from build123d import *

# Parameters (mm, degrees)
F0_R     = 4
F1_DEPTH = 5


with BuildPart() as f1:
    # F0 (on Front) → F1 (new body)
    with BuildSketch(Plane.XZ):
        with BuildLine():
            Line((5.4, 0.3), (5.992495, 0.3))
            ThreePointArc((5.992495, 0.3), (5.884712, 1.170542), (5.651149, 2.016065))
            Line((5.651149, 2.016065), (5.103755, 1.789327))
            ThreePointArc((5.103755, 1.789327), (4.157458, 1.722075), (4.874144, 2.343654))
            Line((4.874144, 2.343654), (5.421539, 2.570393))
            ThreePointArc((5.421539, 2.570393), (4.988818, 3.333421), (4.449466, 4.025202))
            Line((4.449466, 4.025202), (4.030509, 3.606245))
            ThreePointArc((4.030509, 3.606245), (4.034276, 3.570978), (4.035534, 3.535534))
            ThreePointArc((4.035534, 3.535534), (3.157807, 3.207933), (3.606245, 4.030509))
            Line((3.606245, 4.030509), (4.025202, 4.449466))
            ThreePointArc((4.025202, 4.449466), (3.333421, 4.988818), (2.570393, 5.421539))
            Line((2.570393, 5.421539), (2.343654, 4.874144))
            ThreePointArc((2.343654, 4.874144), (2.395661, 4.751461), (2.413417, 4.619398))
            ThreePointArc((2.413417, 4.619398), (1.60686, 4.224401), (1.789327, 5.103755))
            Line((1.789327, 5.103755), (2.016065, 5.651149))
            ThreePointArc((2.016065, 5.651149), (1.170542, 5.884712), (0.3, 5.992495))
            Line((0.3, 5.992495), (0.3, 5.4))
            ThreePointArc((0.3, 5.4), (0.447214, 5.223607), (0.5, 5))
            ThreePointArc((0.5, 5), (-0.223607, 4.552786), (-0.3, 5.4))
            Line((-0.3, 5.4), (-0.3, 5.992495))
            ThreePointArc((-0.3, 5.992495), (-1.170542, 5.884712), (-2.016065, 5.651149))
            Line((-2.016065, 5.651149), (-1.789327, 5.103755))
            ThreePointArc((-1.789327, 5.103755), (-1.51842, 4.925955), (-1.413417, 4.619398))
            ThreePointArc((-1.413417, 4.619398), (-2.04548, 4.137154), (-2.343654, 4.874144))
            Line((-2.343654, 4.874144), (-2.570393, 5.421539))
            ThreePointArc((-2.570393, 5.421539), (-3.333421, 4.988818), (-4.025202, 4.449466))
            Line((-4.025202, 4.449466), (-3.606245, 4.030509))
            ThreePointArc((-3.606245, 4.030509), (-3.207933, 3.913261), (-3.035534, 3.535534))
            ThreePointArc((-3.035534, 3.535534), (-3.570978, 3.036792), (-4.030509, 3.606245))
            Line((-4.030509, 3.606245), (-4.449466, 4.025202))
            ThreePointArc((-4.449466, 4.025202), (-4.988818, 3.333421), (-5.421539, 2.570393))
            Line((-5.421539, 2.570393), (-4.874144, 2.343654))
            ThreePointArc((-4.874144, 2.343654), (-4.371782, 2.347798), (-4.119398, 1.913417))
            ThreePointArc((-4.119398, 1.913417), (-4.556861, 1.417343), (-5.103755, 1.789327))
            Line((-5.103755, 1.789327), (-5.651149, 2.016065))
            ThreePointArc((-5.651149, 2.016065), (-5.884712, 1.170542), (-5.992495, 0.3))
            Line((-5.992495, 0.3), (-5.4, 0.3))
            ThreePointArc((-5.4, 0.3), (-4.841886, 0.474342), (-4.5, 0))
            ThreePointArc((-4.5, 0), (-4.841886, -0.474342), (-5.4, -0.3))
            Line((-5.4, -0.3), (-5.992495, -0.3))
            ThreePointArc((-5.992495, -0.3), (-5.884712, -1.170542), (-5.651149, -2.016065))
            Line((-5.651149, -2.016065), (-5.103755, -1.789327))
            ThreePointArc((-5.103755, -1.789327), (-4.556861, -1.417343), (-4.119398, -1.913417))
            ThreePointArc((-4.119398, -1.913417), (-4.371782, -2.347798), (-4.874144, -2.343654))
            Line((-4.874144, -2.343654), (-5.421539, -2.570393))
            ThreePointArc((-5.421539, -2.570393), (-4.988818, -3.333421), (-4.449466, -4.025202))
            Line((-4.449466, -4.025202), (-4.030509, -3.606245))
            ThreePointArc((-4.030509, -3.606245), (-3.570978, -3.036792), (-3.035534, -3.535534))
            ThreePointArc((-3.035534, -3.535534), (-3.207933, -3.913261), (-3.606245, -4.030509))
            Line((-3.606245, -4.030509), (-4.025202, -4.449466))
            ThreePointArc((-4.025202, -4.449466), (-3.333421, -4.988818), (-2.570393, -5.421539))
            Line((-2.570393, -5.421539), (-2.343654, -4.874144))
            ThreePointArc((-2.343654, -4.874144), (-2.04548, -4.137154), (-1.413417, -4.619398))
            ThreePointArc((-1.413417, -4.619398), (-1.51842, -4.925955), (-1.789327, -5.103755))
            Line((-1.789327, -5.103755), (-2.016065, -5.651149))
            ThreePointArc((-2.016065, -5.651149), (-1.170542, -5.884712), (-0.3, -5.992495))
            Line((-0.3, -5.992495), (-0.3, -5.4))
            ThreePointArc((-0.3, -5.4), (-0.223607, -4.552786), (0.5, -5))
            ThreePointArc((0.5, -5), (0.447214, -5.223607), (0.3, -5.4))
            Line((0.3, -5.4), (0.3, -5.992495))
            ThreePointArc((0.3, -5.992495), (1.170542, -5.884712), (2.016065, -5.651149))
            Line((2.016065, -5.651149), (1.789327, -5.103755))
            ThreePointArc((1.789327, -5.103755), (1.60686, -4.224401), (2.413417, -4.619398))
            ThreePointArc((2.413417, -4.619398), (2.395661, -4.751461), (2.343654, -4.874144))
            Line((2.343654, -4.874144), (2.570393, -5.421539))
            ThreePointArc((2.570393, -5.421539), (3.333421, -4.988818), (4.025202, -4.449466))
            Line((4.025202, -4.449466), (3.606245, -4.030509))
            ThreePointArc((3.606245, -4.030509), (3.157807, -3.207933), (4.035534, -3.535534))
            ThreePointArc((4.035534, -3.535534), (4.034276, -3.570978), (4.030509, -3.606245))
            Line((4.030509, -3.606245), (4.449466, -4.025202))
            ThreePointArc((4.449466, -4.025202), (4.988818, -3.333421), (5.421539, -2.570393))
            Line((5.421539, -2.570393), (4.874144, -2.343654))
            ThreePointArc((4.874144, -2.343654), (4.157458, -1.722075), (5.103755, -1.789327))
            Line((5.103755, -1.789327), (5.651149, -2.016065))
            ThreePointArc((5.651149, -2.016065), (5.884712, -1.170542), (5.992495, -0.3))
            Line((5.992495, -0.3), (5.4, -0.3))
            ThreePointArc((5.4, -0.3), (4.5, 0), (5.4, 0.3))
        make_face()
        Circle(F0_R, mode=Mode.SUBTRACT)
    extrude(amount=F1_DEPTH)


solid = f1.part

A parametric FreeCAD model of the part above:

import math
import FreeCAD as App
import Part
import Sketcher

V = App.Vector
Q = App.Units.Quantity

doc = App.newDocument("Part")
body = doc.addObject("PartDesign::Body", "Body")

# Sketch on XZ plane
sketch1 = doc.addObject("Sketcher::SketchObject", "Sketch")
body.addObject(sketch1)
sketch1.AttachmentSupport = (doc.XZ_Plane, [""])
sketch1.MapMode = "FlatFace"
sketch1.addGeometry(Part.LineSegment(V(5.4, 0.3, 0), V(5.992495, 0.3, 0)), False)
sketch1.addGeometry(Part.ArcOfCircle(Part.Circle(V(0.000032, 0.000008, 0), V(0, 0, 1), 5.999968), math.radians(2.86592), math.radians(19.634044)), False)
sketch1.addGeometry(Part.LineSegment(V(5.651149, 2.016065, 0), V(5.103755, 1.789327, 0)), False)
sketch1.addGeometry(Part.ArcOfCircle(Part.Circle(V(4.619398, 1.913416, 0), V(0, 0, 1), 0.5), math.radians(59.369986), math.radians(345.630232)), False)
sketch1.addGeometry(Part.LineSegment(V(4.874144, 2.343654, 0), V(5.421539, 2.570393, 0)), False)
sketch1.addGeometry(Part.ArcOfCircle(Part.Circle(V(-0.000008, -0.000008, 0), V(0, 0, 1), 6.000011), math.radians(25.36602), math.radians(42.134018)), False)
sketch1.addGeometry(Part.LineSegment(V(4.449466, 4.025202, 0), V(4.030509, 3.606245, 0)), False)
sketch1.addGeometry(Part.ArcOfCircle(Part.Circle(V(3.535419, 3.535528, 0), V(0, 0, 1), 0.500115), math.radians(0.000692), math.radians(8.128965)), False)
sketch1.addGeometry(Part.ArcOfCircle(Part.Circle(V(3.535534, 3.535534, 0), V(0, 0, 1), 0.5), math.radians(81.869848), math.radians(359.999978)), False)
sketch1.addGeometry(Part.LineSegment(V(3.606245, 4.030509, 0), V(4.025202, 4.449466, 0)), False)
sketch1.addGeometry(Part.ArcOfCircle(Part.Circle(V(-0.000008, -0.000008, 0), V(0, 0, 1), 6.000011), math.radians(47.865982), math.radians(64.63398)), False)
sketch1.addGeometry(Part.LineSegment(V(2.570393, 5.421539, 0), V(2.343654, 4.874144, 0)), False)
sketch1.addGeometry(Part.ArcOfCircle(Part.Circle(V(1.913423, 4.619398, 0), V(0, 0, 1), 0.499994), math.radians(-0.000055), math.radians(30.630344)), False)
sketch1.addGeometry(Part.ArcOfCircle(Part.Circle(V(1.913417, 4.619398, 0), V(0, 0, 1), 0.5), math.radians(104.369848), math.radians(359.999988)), False)
sketch1.addGeometry(Part.LineSegment(V(1.789327, 5.103755, 0), V(2.016065, 5.651149, 0)), False)
sketch1.addGeometry(Part.ArcOfCircle(Part.Circle(V(0.000008, 0.000032, 0), V(0, 0, 1), 5.999968), math.radians(70.365956), math.radians(87.13408)), False)
sketch1.addGeometry(Part.LineSegment(V(0.3, 5.992495, 0), V(0.3, 5.4, 0)), False)
sketch1.addGeometry(Part.ArcOfCircle(Part.Circle(V(0.000004, 5.000002, 0), V(0, 0, 1), 0.499996), math.radians(-0.00022), math.radians(53.130322)), False)
sketch1.addGeometry(Part.ArcOfCircle(Part.Circle(V(0, 5, 0), V(0, 0, 1), 0.5), math.radians(126.869866), math.radians(360.000032)), False)
sketch1.addGeometry(Part.LineSegment(V(-0.3, 5.4, 0), V(-0.3, 5.992495, 0)), False)
sketch1.addGeometry(Part.ArcOfCircle(Part.Circle(V(-0.000008, 0.000032, 0), V(0, 0, 1), 5.999968), math.radians(92.86592), math.radians(109.634044)), False)
sketch1.addGeometry(Part.LineSegment(V(-2.016065, 5.651149, 0), V(-1.789327, 5.103755, 0)), False)
sketch1.addGeometry(Part.ArcOfCircle(Part.Circle(V(-1.913418, 4.619397, 0), V(0, 0, 1), 0.500001), math.radians(0.000062), math.radians(75.630094)), False)
sketch1.addGeometry(Part.ArcOfCircle(Part.Circle(V(-1.913417, 4.619398, 0), V(0, 0, 1), 0.5), math.radians(149.369952), math.radians(360.000028)), False)
sketch1.addGeometry(Part.LineSegment(V(-2.343654, 4.874144, 0), V(-2.570393, 5.421539, 0)), False)
sketch1.addGeometry(Part.ArcOfCircle(Part.Circle(V(0.000008, -0.000008, 0), V(0, 0, 1), 6.000011), math.radians(115.36602), math.radians(132.134018)), False)
sketch1.addGeometry(Part.LineSegment(V(-4.025202, 4.449466, 0), V(-3.606245, 4.030509, 0)), False)
sketch1.addGeometry(Part.ArcOfCircle(Part.Circle(V(-3.535534, 3.535534, 0), V(0, 0, 1), 0.5), math.radians(-0.000003), math.radians(98.130108)), False)
sketch1.addGeometry(Part.ArcOfCircle(Part.Circle(V(-3.535534, 3.535534, 0), V(0, 0, 1), 0.5), math.radians(171.869895), math.radians(359.999968)), False)
sketch1.addGeometry(Part.LineSegment(V(-4.030509, 3.606245, 0), V(-4.449466, 4.025202, 0)), False)
sketch1.addGeometry(Part.ArcOfCircle(Part.Circle(V(0.000008, -0.000008, 0), V(0, 0, 1), 6.000011), math.radians(137.865982), math.radians(154.63398)), False)
sketch1.addGeometry(Part.LineSegment(V(-5.421539, 2.570393, 0), V(-4.874144, 2.343654, 0)), False)
sketch1.addGeometry(Part.ArcOfCircle(Part.Circle(V(-4.619397, 1.913418, 0), V(0, 0, 1), 0.499999), math.radians(-0.000145), math.radians(120.630223)), False)
sketch1.addGeometry(Part.ArcOfCircle(Part.Circle(V(-4.619398, 1.913417, 0), V(0, 0, 1), 0.5), math.radians(-165.630196), math.radians(0.000036)), False)
sketch1.addGeometry(Part.LineSegment(V(-5.103755, 1.789327, 0), V(-5.651149, 2.016065, 0)), False)
sketch1.addGeometry(Part.ArcOfCircle(Part.Circle(V(-0.000032, 0.000008, 0), V(0, 0, 1), 5.999968), math.radians(160.365956), math.radians(177.13408)), False)
sketch1.addGeometry(Part.LineSegment(V(-5.992495, 0.3, 0), V(-5.4, 0.3, 0)), False)
sketch1.addGeometry(Part.ArcOfCircle(Part.Circle(V(-5, 0.000001, 0), V(0, 0, 1), 0.5), math.radians(-0.000059), math.radians(143.130161)), False)
sketch1.addGeometry(Part.ArcOfCircle(Part.Circle(V(-5, -0.000001, 0), V(0, 0, 1), 0.5), math.radians(-143.130161), math.radians(0.000059)), False)
sketch1.addGeometry(Part.LineSegment(V(-5.4, -0.3, 0), V(-5.992495, -0.3, 0)), False)
sketch1.addGeometry(Part.ArcOfCircle(Part.Circle(V(-0.000032, -0.000008, 0), V(0, 0, 1), 5.999968), math.radians(-177.13408), math.radians(-160.365956)), False)
sketch1.addGeometry(Part.LineSegment(V(-5.651149, -2.016065, 0), V(-5.103755, -1.789327, 0)), False)
sketch1.addGeometry(Part.ArcOfCircle(Part.Circle(V(-4.619398, -1.913417, 0), V(0, 0, 1), 0.5), math.radians(-0.000036), math.radians(165.630196)), False)
sketch1.addGeometry(Part.ArcOfCircle(Part.Circle(V(-4.619397, -1.913418, 0), V(0, 0, 1), 0.499999), math.radians(-120.630223), math.radians(0.000145)), False)
sketch1.addGeometry(Part.LineSegment(V(-4.874144, -2.343654, 0), V(-5.421539, -2.570393, 0)), False)
sketch1.addGeometry(Part.ArcOfCircle(Part.Circle(V(0.000008, 0.000008, 0), V(0, 0, 1), 6.000011), math.radians(-154.63398), math.radians(-137.865982)), False)
sketch1.addGeometry(Part.LineSegment(V(-4.449466, -4.025202, 0), V(-4.030509, -3.606245, 0)), False)
sketch1.addGeometry(Part.ArcOfCircle(Part.Circle(V(-3.535534, -3.535534, 0), V(0, 0, 1), 0.5), math.radians(0.000032), math.radians(188.130105)), False)
sketch1.addGeometry(Part.ArcOfCircle(Part.Circle(V(-3.535534, -3.535534, 0), V(0, 0, 1), 0.5), math.radians(-98.130108), math.radians(0.000003)), False)
sketch1.addGeometry(Part.LineSegment(V(-3.606245, -4.030509, 0), V(-4.025202, -4.449466, 0)), False)
sketch1.addGeometry(Part.ArcOfCircle(Part.Circle(V(0.000008, 0.000008, 0), V(0, 0, 1), 6.000011), math.radians(-132.134018), math.radians(-115.36602)), False)
sketch1.addGeometry(Part.LineSegment(V(-2.570393, -5.421539, 0), V(-2.343654, -4.874144, 0)), False)
sketch1.addGeometry(Part.ArcOfCircle(Part.Circle(V(-1.913417, -4.619398, 0), V(0, 0, 1), 0.5), math.radians(-0.000028), math.radians(210.630048)), False)
sketch1.addGeometry(Part.ArcOfCircle(Part.Circle(V(-1.913418, -4.619397, 0), V(0, 0, 1), 0.500001), math.radians(-75.630094), math.radians(-0.000062)), False)
sketch1.addGeometry(Part.LineSegment(V(-1.789327, -5.103755, 0), V(-2.016065, -5.651149, 0)), False)
sketch1.addGeometry(Part.ArcOfCircle(Part.Circle(V(-0.000008, -0.000032, 0), V(0, 0, 1), 5.999968), math.radians(-109.634044), math.radians(-92.86592)), False)
sketch1.addGeometry(Part.LineSegment(V(-0.3, -5.992495, 0), V(-0.3, -5.4, 0)), False)
sketch1.addGeometry(Part.ArcOfCircle(Part.Circle(V(0, -5, 0), V(0, 0, 1), 0.5), math.radians(-0.000032), math.radians(233.130134)), False)
sketch1.addGeometry(Part.ArcOfCircle(Part.Circle(V(0.000004, -5.000002, 0), V(0, 0, 1), 0.499996), math.radians(-53.130322), math.radians(0.00022)), False)
sketch1.addGeometry(Part.LineSegment(V(0.3, -5.4, 0), V(0.3, -5.992495, 0)), False)
sketch1.addGeometry(Part.ArcOfCircle(Part.Circle(V(0.000008, -0.000032, 0), V(0, 0, 1), 5.999968), math.radians(-87.13408), math.radians(-70.365956)), False)
sketch1.addGeometry(Part.LineSegment(V(2.016065, -5.651149, 0), V(1.789327, -5.103755, 0)), False)
sketch1.addGeometry(Part.ArcOfCircle(Part.Circle(V(1.913417, -4.619398, 0), V(0, 0, 1), 0.5), math.radians(0.000012), math.radians(255.630152)), False)
sketch1.addGeometry(Part.ArcOfCircle(Part.Circle(V(1.913423, -4.619398, 0), V(0, 0, 1), 0.499994), math.radians(-30.630344), math.radians(0.000055)), False)
sketch1.addGeometry(Part.LineSegment(V(2.343654, -4.874144, 0), V(2.570393, -5.421539, 0)), False)
sketch1.addGeometry(Part.ArcOfCircle(Part.Circle(V(-0.000008, 0.000008, 0), V(0, 0, 1), 6.000011), math.radians(-64.63398), math.radians(-47.865982)), False)
sketch1.addGeometry(Part.LineSegment(V(4.025202, -4.449466, 0), V(3.606245, -4.030509, 0)), False)
sketch1.addGeometry(Part.ArcOfCircle(Part.Circle(V(3.535534, -3.535534, 0), V(0, 0, 1), 0.5), math.radians(0.000022), math.radians(278.130152)), False)
sketch1.addGeometry(Part.ArcOfCircle(Part.Circle(V(3.535419, -3.535528, 0), V(0, 0, 1), 0.500115), math.radians(-8.128965), math.radians(-0.000692)), False)
sketch1.addGeometry(Part.LineSegment(V(4.030509, -3.606245, 0), V(4.449466, -4.025202, 0)), False)
sketch1.addGeometry(Part.ArcOfCircle(Part.Circle(V(-0.000008, 0.000008, 0), V(0, 0, 1), 6.000011), math.radians(-42.134018), math.radians(-25.36602)), False)
sketch1.addGeometry(Part.LineSegment(V(5.421539, -2.570393, 0), V(4.874144, -2.343654, 0)), False)
sketch1.addGeometry(Part.ArcOfCircle(Part.Circle(V(4.619398, -1.913416, 0), V(0, 0, 1), 0.5), math.radians(14.369768), math.radians(300.630014)), False)
sketch1.addGeometry(Part.LineSegment(V(5.103755, -1.789327, 0), V(5.651149, -2.016065, 0)), False)
sketch1.addGeometry(Part.ArcOfCircle(Part.Circle(V(0.000032, -0.000008, 0), V(0, 0, 1), 5.999968), math.radians(-19.634044), math.radians(-2.86592)), False)
sketch1.addGeometry(Part.LineSegment(V(5.992495, -0.3, 0), V(5.4, -0.3, 0)), False)
sketch1.addGeometry(Part.ArcOfCircle(Part.Circle(V(5, 0, 0), V(0, 0, 1), 0.5), math.radians(36.869898), math.radians(323.130102)), False)
sketch1.addGeometry(Part.Circle(V(0, 0, 0), V(0, 0, 1), 4), False)
sketch1.addConstraint(Sketcher.Constraint("Coincident", 0, 2, 1, 1))
sketch1.addConstraint(Sketcher.Constraint("Coincident", 1, 2, 2, 1))
sketch1.addConstraint(Sketcher.Constraint("Coincident", 2, 2, 3, 2))
sketch1.addConstraint(Sketcher.Constraint("Coincident", 3, 1, 4, 1))
sketch1.addConstraint(Sketcher.Constraint("Coincident", 4, 2, 5, 1))
sketch1.addConstraint(Sketcher.Constraint("Coincident", 5, 2, 6, 1))
sketch1.addConstraint(Sketcher.Constraint("Coincident", 6, 2, 7, 2))
sketch1.addConstraint(Sketcher.Constraint("Coincident", 7, 1, 8, 2))
sketch1.addConstraint(Sketcher.Constraint("Coincident", 8, 1, 9, 1))
sketch1.addConstraint(Sketcher.Constraint("Coincident", 9, 2, 10, 1))
sketch1.addConstraint(Sketcher.Constraint("Coincident", 10, 2, 11, 1))
sketch1.addConstraint(Sketcher.Constraint("Coincident", 11, 2, 12, 2))
sketch1.addConstraint(Sketcher.Constraint("Tangent", 12, 1, 13, 2))
sketch1.addConstraint(Sketcher.Constraint("Coincident", 13, 1, 14, 1))
sketch1.addConstraint(Sketcher.Constraint("Coincident", 14, 2, 15, 1))
sketch1.addConstraint(Sketcher.Constraint("Coincident", 15, 2, 16, 1))
sketch1.addConstraint(Sketcher.Constraint("Coincident", 16, 2, 17, 2))
sketch1.addConstraint(Sketcher.Constraint("Coincident", 17, 1, 18, 2))
sketch1.addConstraint(Sketcher.Constraint("Coincident", 18, 1, 19, 1))
sketch1.addConstraint(Sketcher.Constraint("Coincident", 19, 2, 20, 1))
sketch1.addConstraint(Sketcher.Constraint("Coincident", 20, 2, 21, 1))
sketch1.addConstraint(Sketcher.Constraint("Coincident", 21, 2, 22, 2))
sketch1.addConstraint(Sketcher.Constraint("Tangent", 22, 1, 23, 2))
sketch1.addConstraint(Sketcher.Constraint("Coincident", 23, 1, 24, 1))
sketch1.addConstraint(Sketcher.Constraint("Coincident", 24, 2, 25, 1))
sketch1.addConstraint(Sketcher.Constraint("Coincident", 25, 2, 26, 1))
sketch1.addConstraint(Sketcher.Constraint("Coincident", 26, 2, 27, 2))
sketch1.addConstraint(Sketcher.Constraint("Tangent", 27, 1, 28, 2))
sketch1.addConstraint(Sketcher.Constraint("Coincident", 28, 1, 29, 1))
sketch1.addConstraint(Sketcher.Constraint("Coincident", 29, 2, 30, 1))
sketch1.addConstraint(Sketcher.Constraint("Coincident", 30, 2, 31, 1))
sketch1.addConstraint(Sketcher.Constraint("Coincident", 31, 2, 32, 2))
sketch1.addConstraint(Sketcher.Constraint("Coincident", 32, 1, 33, 2))
sketch1.addConstraint(Sketcher.Constraint("Coincident", 33, 1, 34, 1))
sketch1.addConstraint(Sketcher.Constraint("Coincident", 34, 2, 35, 1))
sketch1.addConstraint(Sketcher.Constraint("Coincident", 35, 2, 36, 1))
sketch1.addConstraint(Sketcher.Constraint("Coincident", 36, 2, 37, 2))
sketch1.addConstraint(Sketcher.Constraint("Coincident", 37, 1, 38, 2))
sketch1.addConstraint(Sketcher.Constraint("Coincident", 38, 1, 39, 1))
sketch1.addConstraint(Sketcher.Constraint("Coincident", 39, 2, 40, 1))
sketch1.addConstraint(Sketcher.Constraint("Coincident", 40, 2, 41, 1))
sketch1.addConstraint(Sketcher.Constraint("Coincident", 41, 2, 42, 2))
sketch1.addConstraint(Sketcher.Constraint("Coincident", 42, 1, 43, 2))
sketch1.addConstraint(Sketcher.Constraint("Coincident", 43, 1, 44, 1))
sketch1.addConstraint(Sketcher.Constraint("Coincident", 44, 2, 45, 1))
sketch1.addConstraint(Sketcher.Constraint("Coincident", 45, 2, 46, 1))
sketch1.addConstraint(Sketcher.Constraint("Coincident", 46, 2, 47, 2))
sketch1.addConstraint(Sketcher.Constraint("Tangent", 47, 1, 48, 2))
sketch1.addConstraint(Sketcher.Constraint("Coincident", 48, 1, 49, 1))
sketch1.addConstraint(Sketcher.Constraint("Coincident", 49, 2, 50, 1))
sketch1.addConstraint(Sketcher.Constraint("Coincident", 50, 2, 51, 1))
sketch1.addConstraint(Sketcher.Constraint("Coincident", 51, 2, 52, 2))
sketch1.addConstraint(Sketcher.Constraint("Tangent", 52, 1, 53, 2))
sketch1.addConstraint(Sketcher.Constraint("Coincident", 53, 1, 54, 1))
sketch1.addConstraint(Sketcher.Constraint("Coincident", 54, 2, 55, 1))
sketch1.addConstraint(Sketcher.Constraint("Coincident", 55, 2, 56, 1))
sketch1.addConstraint(Sketcher.Constraint("Coincident", 56, 2, 57, 2))
sketch1.addConstraint(Sketcher.Constraint("Coincident", 57, 1, 58, 2))
sketch1.addConstraint(Sketcher.Constraint("Coincident", 58, 1, 59, 1))
sketch1.addConstraint(Sketcher.Constraint("Coincident", 59, 2, 60, 1))
sketch1.addConstraint(Sketcher.Constraint("Coincident", 60, 2, 61, 1))
sketch1.addConstraint(Sketcher.Constraint("Coincident", 61, 2, 62, 2))
sketch1.addConstraint(Sketcher.Constraint("Tangent", 62, 1, 63, 2))
sketch1.addConstraint(Sketcher.Constraint("Coincident", 63, 1, 64, 1))
sketch1.addConstraint(Sketcher.Constraint("Coincident", 64, 2, 65, 1))
sketch1.addConstraint(Sketcher.Constraint("Coincident", 65, 2, 66, 1))
sketch1.addConstraint(Sketcher.Constraint("Coincident", 66, 2, 67, 2))
sketch1.addConstraint(Sketcher.Constraint("Coincident", 67, 1, 68, 2))
sketch1.addConstraint(Sketcher.Constraint("Coincident", 68, 1, 69, 1))
sketch1.addConstraint(Sketcher.Constraint("Coincident", 69, 2, 70, 1))
sketch1.addConstraint(Sketcher.Constraint("Coincident", 70, 2, 71, 1))
sketch1.addConstraint(Sketcher.Constraint("Coincident", 71, 2, 72, 2))
sketch1.addConstraint(Sketcher.Constraint("Coincident", 72, 1, 73, 1))
sketch1.addConstraint(Sketcher.Constraint("Coincident", 73, 2, 74, 1))
sketch1.addConstraint(Sketcher.Constraint("Coincident", 74, 2, 75, 1))
sketch1.addConstraint(Sketcher.Constraint("Coincident", 75, 2, 76, 2))
sketch1.addConstraint(Sketcher.Constraint("Coincident", 76, 1, 0, 1))
sketch1.addConstraint(Sketcher.Constraint("Horizontal", 0))
sketch1.addConstraint(Sketcher.Constraint("Vertical", 16))
sketch1.addConstraint(Sketcher.Constraint("Vertical", 19))
sketch1.addConstraint(Sketcher.Constraint("Horizontal", 36))
sketch1.addConstraint(Sketcher.Constraint("Horizontal", 39))
sketch1.addConstraint(Sketcher.Constraint("Vertical", 56))
sketch1.addConstraint(Sketcher.Constraint("Vertical", 59))
sketch1.addConstraint(Sketcher.Constraint("Horizontal", 75))
sketch1.addConstraint(Sketcher.Constraint("Coincident", 77, 3, -1, 1))
sketch1.addConstraint(Sketcher.Constraint("Coincident", 10, 3, 5, 3))
sketch1.addConstraint(Sketcher.Constraint("Coincident", 18, 3, 17, 3))
sketch1.addConstraint(Sketcher.Constraint("Coincident", 30, 3, 25, 3))
sketch1.addConstraint(Sketcher.Constraint("Coincident", 33, 3, 32, 3))
sketch1.addConstraint(Sketcher.Constraint("Coincident", 38, 3, 37, 3))
sketch1.addConstraint(Sketcher.Constraint("Coincident", 43, 3, 42, 3))
sketch1.addConstraint(Sketcher.Constraint("Coincident", 50, 3, 45, 3))
sketch1.addConstraint(Sketcher.Constraint("Coincident", 58, 3, 57, 3))
sketch1.addConstraint(Sketcher.Constraint("Coincident", 70, 3, 65, 3))
sketch1.addConstraint(Sketcher.Constraint("Equal", 3, 8))
sketch1.addConstraint(Sketcher.Constraint("Equal", 5, 10))
sketch1.addConstraint(Sketcher.Constraint("Equal", 8, 13))
sketch1.addConstraint(Sketcher.Constraint("Equal", 1, 15))
sketch1.addConstraint(Sketcher.Constraint("Equal", 13, 18))
sketch1.addConstraint(Sketcher.Constraint("Equal", 15, 20))
sketch1.addConstraint(Sketcher.Constraint("Equal", 18, 22))
sketch1.addConstraint(Sketcher.Constraint("Equal", 22, 23))
sketch1.addConstraint(Sketcher.Constraint("Equal", 10, 25))
sketch1.addConstraint(Sketcher.Constraint("Equal", 23, 27))
sketch1.addConstraint(Sketcher.Constraint("Equal", 27, 28))
sketch1.addConstraint(Sketcher.Constraint("Equal", 25, 30))
sketch1.addConstraint(Sketcher.Constraint("Equal", 28, 32))
sketch1.addConstraint(Sketcher.Constraint("Equal", 20, 35))
sketch1.addConstraint(Sketcher.Constraint("Equal", 33, 37))
sketch1.addConstraint(Sketcher.Constraint("Equal", 35, 40))
sketch1.addConstraint(Sketcher.Constraint("Equal", 38, 42))
sketch1.addConstraint(Sketcher.Constraint("Equal", 30, 45))
sketch1.addConstraint(Sketcher.Constraint("Equal", 43, 47))
sketch1.addConstraint(Sketcher.Constraint("Equal", 47, 48))
sketch1.addConstraint(Sketcher.Constraint("Equal", 45, 50))
sketch1.addConstraint(Sketcher.Constraint("Equal", 48, 52))
sketch1.addConstraint(Sketcher.Constraint("Equal", 52, 53))
sketch1.addConstraint(Sketcher.Constraint("Equal", 40, 55))
sketch1.addConstraint(Sketcher.Constraint("Equal", 53, 57))
sketch1.addConstraint(Sketcher.Constraint("Equal", 55, 60))
sketch1.addConstraint(Sketcher.Constraint("Equal", 57, 62))
sketch1.addConstraint(Sketcher.Constraint("Equal", 12, 63))
sketch1.addConstraint(Sketcher.Constraint("Equal", 50, 65))
sketch1.addConstraint(Sketcher.Constraint("Equal", 62, 67))
sketch1.addConstraint(Sketcher.Constraint("Equal", 7, 68))
sketch1.addConstraint(Sketcher.Constraint("Equal", 65, 70))
sketch1.addConstraint(Sketcher.Constraint("Equal", 67, 72))
sketch1.addConstraint(Sketcher.Constraint("Equal", 60, 74))
sketch1.addConstraint(Sketcher.Constraint("Equal", 72, 76))
sketch1.addConstraint(Sketcher.Constraint("Symmetric", 1, 3, 40, 3, -1, 1))
sketch1.addConstraint(Sketcher.Constraint("Symmetric", 3, 3, 42, 3, -1, 1))
sketch1.addConstraint(Sketcher.Constraint("Symmetric", 5, 3, 45, 3, -1, 1))
sketch1.addConstraint(Sketcher.Constraint("Symmetric", 8, 3, 47, 3, -1, 1))
sketch1.addConstraint(Sketcher.Constraint("Symmetric", 12, 3, 52, 3, -1, 1))
sketch1.addConstraint(Sketcher.Constraint("Symmetric", 15, 3, 55, 3, -1, 1))
sketch1.addConstraint(Sketcher.Constraint("Symmetric", 17, 3, 57, 3, -1, 1))
sketch1.addConstraint(Sketcher.Constraint("Symmetric", 20, 3, 60, 3, -1, 1))
sketch1.addConstraint(Sketcher.Constraint("Symmetric", 22, 3, 62, 3, -1, 1))
sketch1.addConstraint(Sketcher.Constraint("Symmetric", 25, 3, 65, 3, -1, 1))
sketch1.addConstraint(Sketcher.Constraint("Symmetric", 27, 3, 67, 3, -1, 1))
sketch1.addConstraint(Sketcher.Constraint("Symmetric", 32, 3, 72, 3, -1, 1))
sketch1.addConstraint(Sketcher.Constraint("Symmetric", 35, 3, 74, 3, -1, 1))
sketch1.addConstraint(Sketcher.Constraint("Symmetric", 37, 3, 76, 3, -1, 1))
sketch1.addConstraint(Sketcher.Constraint("Symmetric", 6, 2, 46, 2, -1, 1))
sketch1.addConstraint(Sketcher.Constraint("Symmetric", 11, 2, 51, 2, -1, 1))
sketch1.addConstraint(Sketcher.Constraint("Symmetric", 28, 1, 68, 1, -1, 1))
sketch1.addConstraint(Sketcher.Constraint("Symmetric", 15, 3, 20, 3, -2))
sketch1.addConstraint(Sketcher.Constraint("Symmetric", 12, 3, 22, 3, -2))
sketch1.addConstraint(Sketcher.Constraint("Symmetric", 5, 3, 25, 3, -2))
sketch1.addConstraint(Sketcher.Constraint("Symmetric", 8, 3, 27, 3, -2))
sketch1.addConstraint(Sketcher.Constraint("Symmetric", 3, 3, 32, 3, -2))
sketch1.addConstraint(Sketcher.Constraint("Symmetric", 1, 3, 35, 3, -2))
sketch1.addConstraint(Sketcher.Constraint("Symmetric", 16, 2, 18, 1, -2))
sketch1.addConstraint(Sketcher.Constraint("Symmetric", 38, 1, 75, 2, -2))
sketch1.addConstraint(Sketcher.Constraint("PointOnObject", 37, 1, -1))
sketch1.addConstraint(Sketcher.Constraint("Parallel", 2, 4))
sketch1.addConstraint(Sketcher.Constraint("Parallel", 6, 9))
sketch1.addConstraint(Sketcher.Constraint("Parallel", 11, 14))
sketch1.addConstraint(Sketcher.Constraint("Perpendicular", 4, 21))
sketch1.addConstraint(Sketcher.Constraint("Parallel", 21, 24))
sketch1.addConstraint(Sketcher.Constraint("Perpendicular", 9, 26))
sketch1.addConstraint(Sketcher.Constraint("Parallel", 26, 29))
sketch1.addConstraint(Sketcher.Constraint("Perpendicular", 14, 31))
sketch1.addConstraint(Sketcher.Constraint("Parallel", 31, 34))
sketch1.addConstraint(Sketcher.Constraint("Perpendicular", 24, 41))
sketch1.addConstraint(Sketcher.Constraint("Parallel", 41, 44))
sketch1.addConstraint(Sketcher.Constraint("Perpendicular", 29, 46))
sketch1.addConstraint(Sketcher.Constraint("Parallel", 46, 49))
sketch1.addConstraint(Sketcher.Constraint("Perpendicular", 34, 51))
sketch1.addConstraint(Sketcher.Constraint("Parallel", 51, 54))
sketch1.addConstraint(Sketcher.Constraint("Perpendicular", 44, 61))
sketch1.addConstraint(Sketcher.Constraint("Parallel", 61, 64))
sketch1.addConstraint(Sketcher.Constraint("Perpendicular", 49, 66))
sketch1.addConstraint(Sketcher.Constraint("Parallel", 66, 69))
sketch1.addConstraint(Sketcher.Constraint("Perpendicular", 54, 71))
sketch1.addConstraint(Sketcher.Constraint("Parallel", 71, 73))
sketch1.addConstraint(Sketcher.Constraint("Horizontal", 30, 3, 40, 3))
sketch1.addConstraint(Sketcher.Constraint("Horizontal", 28, 3, 7, 1))
sketch1.addConstraint(Sketcher.Constraint("Horizontal", 23, 3, 12, 1))
sketch1.addConstraint(Sketcher.Constraint("Horizontal", 18, 3, 17, 1))
sketch1.addConstraint(Sketcher.Constraint("Horizontal", 14, 2, 20, 2))
sketch1.addConstraint(Sketcher.Constraint("Horizontal", 13, 1, 21, 2))
sketch1.addConstraint(Sketcher.Constraint("Horizontal", 12, 1, 22, 1))
sketch1.addConstraint(Sketcher.Constraint("Horizontal", 11, 2, 23, 1))
sketch1.addConstraint(Sketcher.Constraint("Horizontal", 9, 2, 25, 2))
sketch1.addConstraint(Sketcher.Constraint("Horizontal", 8, 1, 26, 2))
sketch1.addConstraint(Sketcher.Constraint("Horizontal", 7, 1, 27, 1))
sketch1.addConstraint(Sketcher.Constraint("Horizontal", 6, 2, 28, 1))
sketch1.addConstraint(Sketcher.Constraint("Horizontal", 4, 2, 30, 2))
sketch1.addConstraint(Sketcher.Constraint("Horizontal", 33, 3, 32, 1))
sketch1.addConstraint(Sketcher.Constraint("Horizontal", 2, 2, 33, 1))
sketch1.addConstraint(Sketcher.Constraint("Horizontal", 0, 2, 35, 2))
sketch1.addConstraint(Sketcher.Constraint("Horizontal", 72, 3, 42, 1))
sketch1.addConstraint(Sketcher.Constraint("Horizontal", 67, 3, 47, 1))
sketch1.addConstraint(Sketcher.Constraint("Horizontal", 63, 3, 52, 1))
sketch1.addConstraint(Sketcher.Constraint("Horizontal", 58, 3, 57, 1))
sketch1.addConstraint(Sketcher.Constraint("Horizontal", 56, 2, 58, 1))
sketch1.addConstraint(Sketcher.Constraint("Horizontal", 54, 2, 60, 2))
sketch1.addConstraint(Sketcher.Constraint("Horizontal", 52, 1, 62, 1))
sketch1.addConstraint(Sketcher.Constraint("Horizontal", 51, 2, 63, 1))
sketch1.addConstraint(Sketcher.Constraint("Horizontal", 49, 2, 65, 2))
sketch1.addConstraint(Sketcher.Constraint("Horizontal", 47, 1, 67, 1))
sketch1.addConstraint(Sketcher.Constraint("Horizontal", 44, 2, 70, 2))
sketch1.addConstraint(Sketcher.Constraint("Horizontal", 41, 2, 72, 1))
sketch1.addConstraint(Sketcher.Constraint("Vertical", 10, 3, 20, 3))
sketch1.addConstraint(Sketcher.Constraint("Vertical", 36, 2, 38, 1))
sketch1.addConstraint(Sketcher.Constraint("Vertical", 34, 2, 40, 2))
sketch1.addConstraint(Sketcher.Constraint("Vertical", 31, 2, 43, 1))
sketch1.addConstraint(Sketcher.Constraint("Vertical", 26, 2, 48, 1))
sketch1.addConstraint(Sketcher.Constraint("Vertical", 21, 2, 53, 1))
sketch1.addConstraint(Sketcher.Constraint("Vertical", 19, 2, 55, 2))
sketch1.addConstraint(Sketcher.Constraint("Equal", 75, 16))
sketch1.addConstraint(Sketcher.Constraint("Equal", 2, 4))
sketch1.addConstraint(Sketcher.Constraint("Equal", 4, 6))
sketch1.addConstraint(Sketcher.Constraint("Equal", 6, 9))
sketch1.addConstraint(Sketcher.Constraint("Equal", 9, 11))
sketch1.addConstraint(Sketcher.Constraint("Equal", 11, 14))
sketch1.addConstraint(Sketcher.Constraint("Diameter", 77, Q("8 mm")))
sketch1.addConstraint(Sketcher.Constraint("Radius", 3, Q("0.5 mm")))
sketch1.addConstraint(Sketcher.Constraint("DistanceY", -1, 1, 17, 3, Q("5.000002 mm")))
sketch1.addConstraint(Sketcher.Constraint("DistanceX", 37, 3, -1, 1, Q("5 mm")))
sketch1.addConstraint(Sketcher.Constraint("Angle", 2, Q("-157.500002 deg")))
sketch1.addConstraint(Sketcher.Constraint("DistanceY", -1, 1, 0, 2, Q("0.3 mm")))
sketch1.addConstraint(Sketcher.Constraint("DistanceX", -1, 1, 15, 2, Q("0.3 mm")))
sketch1.addConstraint(Sketcher.Constraint("Radius", 5, Q("6.000011 mm")))
sketch1.addConstraint(Sketcher.Constraint("Radius", 1, Q("5.999968 mm")))
sketch1.addConstraint(Sketcher.Constraint("Radius", 7, Q("0.500115 mm")))
sketch1.addConstraint(Sketcher.Constraint("DistanceY", -1, 1, 12, 3, Q("4.619398 mm")))
sketch1.addConstraint(Sketcher.Constraint("DistanceX", 32, 1, -1, 1, Q("4.119398 mm")))
sketch1.addConstraint(Sketcher.Constraint("DistanceX", 0, 1, 0, 2, Q("0.592495 mm")))
sketch1.addConstraint(Sketcher.Constraint("DistanceX", -1, 1, 7, 3, Q("3.535419 mm")))
sketch1.addConstraint(Sketcher.Constraint("DistanceY", -1, 1, 32, 3, Q("1.913418 mm")))
sketch1.addConstraint(Sketcher.Constraint("DistanceX", -1, 1, 1, 2, Q("5.651149 mm")))
sketch1.addConstraint(Sketcher.Constraint("DistanceX", -1, 1, 4, 2, Q("5.421539 mm")))
sketch1.addConstraint(Sketcher.Constraint("DistanceX", -1, 1, 6, 2, Q("4.030509 mm")))
sketch1.addConstraint(Sketcher.Constraint("DistanceY", -1, 1, 8, 1, Q("4.030509 mm")))
sketch1.addConstraint(Sketcher.Constraint("DistanceY", -1, 1, 10, 2, Q("5.421539 mm")))
pad1 = doc.addObject("PartDesign::Pad", "Pad")
body.addObject(pad1)
pad1.Profile = sketch1
pad1.Length = 5

doc.recompute()
